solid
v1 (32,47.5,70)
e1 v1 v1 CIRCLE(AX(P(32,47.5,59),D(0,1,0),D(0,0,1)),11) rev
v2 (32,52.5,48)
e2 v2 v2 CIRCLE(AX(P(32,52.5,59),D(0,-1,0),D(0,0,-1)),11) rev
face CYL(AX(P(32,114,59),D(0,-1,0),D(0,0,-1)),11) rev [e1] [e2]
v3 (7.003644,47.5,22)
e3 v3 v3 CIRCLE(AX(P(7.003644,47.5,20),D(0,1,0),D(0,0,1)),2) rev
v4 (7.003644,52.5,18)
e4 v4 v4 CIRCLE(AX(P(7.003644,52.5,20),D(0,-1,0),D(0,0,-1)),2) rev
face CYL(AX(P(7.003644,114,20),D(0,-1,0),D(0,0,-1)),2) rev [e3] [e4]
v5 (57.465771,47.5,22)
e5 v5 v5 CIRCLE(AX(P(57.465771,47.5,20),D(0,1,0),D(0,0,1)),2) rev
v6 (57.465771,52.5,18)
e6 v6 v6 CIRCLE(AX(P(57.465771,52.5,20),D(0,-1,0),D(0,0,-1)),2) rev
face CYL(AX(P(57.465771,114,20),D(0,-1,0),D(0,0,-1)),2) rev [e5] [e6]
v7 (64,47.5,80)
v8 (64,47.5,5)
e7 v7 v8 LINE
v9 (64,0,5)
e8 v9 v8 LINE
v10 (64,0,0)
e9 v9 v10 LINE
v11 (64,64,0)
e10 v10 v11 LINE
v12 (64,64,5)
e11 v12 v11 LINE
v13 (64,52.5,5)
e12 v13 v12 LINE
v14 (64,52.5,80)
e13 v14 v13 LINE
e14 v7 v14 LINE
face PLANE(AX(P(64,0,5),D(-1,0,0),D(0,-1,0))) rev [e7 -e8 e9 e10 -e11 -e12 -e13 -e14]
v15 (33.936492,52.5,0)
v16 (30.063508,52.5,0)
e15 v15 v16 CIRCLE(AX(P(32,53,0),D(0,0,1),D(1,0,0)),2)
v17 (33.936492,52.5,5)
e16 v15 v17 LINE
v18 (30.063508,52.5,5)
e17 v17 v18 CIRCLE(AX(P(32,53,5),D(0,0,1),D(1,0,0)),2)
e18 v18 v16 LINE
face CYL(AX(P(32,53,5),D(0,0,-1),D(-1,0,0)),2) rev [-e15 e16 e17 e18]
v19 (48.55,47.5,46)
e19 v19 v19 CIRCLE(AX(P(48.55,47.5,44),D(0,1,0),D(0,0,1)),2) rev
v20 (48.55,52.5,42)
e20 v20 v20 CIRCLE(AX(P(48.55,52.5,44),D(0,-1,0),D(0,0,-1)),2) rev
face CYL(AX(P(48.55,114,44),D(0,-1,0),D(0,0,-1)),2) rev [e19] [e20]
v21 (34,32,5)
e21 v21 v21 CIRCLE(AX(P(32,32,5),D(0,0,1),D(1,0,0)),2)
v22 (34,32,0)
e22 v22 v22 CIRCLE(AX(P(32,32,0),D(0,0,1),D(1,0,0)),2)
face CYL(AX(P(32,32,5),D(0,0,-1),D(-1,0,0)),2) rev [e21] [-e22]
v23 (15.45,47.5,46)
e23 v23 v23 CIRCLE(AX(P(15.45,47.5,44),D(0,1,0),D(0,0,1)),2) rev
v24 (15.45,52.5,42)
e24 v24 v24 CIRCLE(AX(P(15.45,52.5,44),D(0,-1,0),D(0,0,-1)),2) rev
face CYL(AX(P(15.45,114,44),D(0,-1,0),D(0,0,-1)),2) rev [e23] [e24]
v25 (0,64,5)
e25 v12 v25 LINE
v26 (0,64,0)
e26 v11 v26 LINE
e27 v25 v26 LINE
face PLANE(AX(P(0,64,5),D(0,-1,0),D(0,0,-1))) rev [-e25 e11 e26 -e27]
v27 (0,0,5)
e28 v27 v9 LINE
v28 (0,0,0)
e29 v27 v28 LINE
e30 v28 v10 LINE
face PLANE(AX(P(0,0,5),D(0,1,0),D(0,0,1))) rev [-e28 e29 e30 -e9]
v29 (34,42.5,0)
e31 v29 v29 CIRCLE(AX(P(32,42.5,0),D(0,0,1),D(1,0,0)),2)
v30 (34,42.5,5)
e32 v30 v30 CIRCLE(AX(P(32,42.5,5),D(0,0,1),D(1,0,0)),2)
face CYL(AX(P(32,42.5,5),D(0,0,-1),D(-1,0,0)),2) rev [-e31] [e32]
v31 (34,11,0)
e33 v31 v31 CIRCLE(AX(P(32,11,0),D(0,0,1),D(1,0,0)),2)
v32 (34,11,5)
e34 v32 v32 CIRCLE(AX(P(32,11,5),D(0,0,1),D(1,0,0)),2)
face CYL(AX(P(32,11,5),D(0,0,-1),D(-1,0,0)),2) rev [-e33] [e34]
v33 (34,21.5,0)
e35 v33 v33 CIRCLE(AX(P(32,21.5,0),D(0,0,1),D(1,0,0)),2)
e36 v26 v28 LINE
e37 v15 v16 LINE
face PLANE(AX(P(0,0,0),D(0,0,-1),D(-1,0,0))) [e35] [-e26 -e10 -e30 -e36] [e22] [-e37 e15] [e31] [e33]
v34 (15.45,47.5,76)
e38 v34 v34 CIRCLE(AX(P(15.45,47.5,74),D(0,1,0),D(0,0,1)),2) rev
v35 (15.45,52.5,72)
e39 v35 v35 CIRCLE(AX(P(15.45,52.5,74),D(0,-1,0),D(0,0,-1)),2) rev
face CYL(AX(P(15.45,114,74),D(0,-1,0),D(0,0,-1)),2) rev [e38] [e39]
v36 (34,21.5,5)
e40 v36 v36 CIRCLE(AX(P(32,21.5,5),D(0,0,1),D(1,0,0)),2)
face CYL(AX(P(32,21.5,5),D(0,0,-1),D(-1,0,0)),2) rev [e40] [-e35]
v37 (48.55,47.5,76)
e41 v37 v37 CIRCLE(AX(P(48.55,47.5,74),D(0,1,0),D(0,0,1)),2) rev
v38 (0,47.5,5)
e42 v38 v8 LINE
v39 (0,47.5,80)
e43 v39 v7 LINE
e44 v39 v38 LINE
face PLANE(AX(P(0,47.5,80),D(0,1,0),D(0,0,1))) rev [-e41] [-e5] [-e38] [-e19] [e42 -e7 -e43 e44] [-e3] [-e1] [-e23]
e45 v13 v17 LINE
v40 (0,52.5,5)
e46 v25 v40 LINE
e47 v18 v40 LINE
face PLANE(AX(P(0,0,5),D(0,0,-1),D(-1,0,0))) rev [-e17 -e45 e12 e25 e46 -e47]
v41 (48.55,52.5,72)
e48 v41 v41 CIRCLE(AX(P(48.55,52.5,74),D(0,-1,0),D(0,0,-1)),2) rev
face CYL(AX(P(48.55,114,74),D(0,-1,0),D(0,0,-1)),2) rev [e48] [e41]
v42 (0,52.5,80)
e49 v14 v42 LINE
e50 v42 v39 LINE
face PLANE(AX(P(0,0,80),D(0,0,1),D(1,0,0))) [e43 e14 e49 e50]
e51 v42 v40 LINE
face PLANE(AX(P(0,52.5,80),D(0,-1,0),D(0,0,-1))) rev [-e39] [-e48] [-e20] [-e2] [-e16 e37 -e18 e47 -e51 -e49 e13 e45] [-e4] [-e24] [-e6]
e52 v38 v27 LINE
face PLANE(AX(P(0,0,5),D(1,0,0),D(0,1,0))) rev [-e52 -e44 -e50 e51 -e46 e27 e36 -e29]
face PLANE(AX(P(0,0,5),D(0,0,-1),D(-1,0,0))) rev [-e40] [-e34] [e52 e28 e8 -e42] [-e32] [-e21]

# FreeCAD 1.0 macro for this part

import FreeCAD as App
import Part
import Sketcher
Q = App.Units.Quantity


def add_polygon(sketch, points):
    """Adds a closed chain of lines whose ends are joined by coincident constraints."""
    first, n = sketch.GeometryCount, len(points)
    for a, b in zip(points, points[1:] + points[:1]):
        sketch.addGeometry(Part.LineSegment(App.Vector(*a, 0), App.Vector(*b, 0)), False)
    for i in range(n):
        sketch.addConstraint(Sketcher.Constraint("Coincident", first + i, 2, first + (i + 1) % n, 1))

doc = App.newDocument("Part")
params = doc.addObject("Spreadsheet::Sheet", "Params")
for row, (alias, value) in enumerate([
    ("sketch1_diameter", "4 mm"),
    ("sketch1_width", "64 mm"),
    ("pad1_length", "5 mm"),
    ("sketch2_width", "64 mm"),
    ("sketch2_height", "5 mm"),
    ("pad2_length", "80 mm"),
    ("sketch3_diameter", "22 mm"),
    ("sketch3_diameter2", "4 mm"),
    ("pocket1_length", "114 mm"),
], start=1):
    params.set(f"A{row}", alias)
    params.set(f"B{row}", "=" + value)
    params.setAlias(f"B{row}", alias)

body = doc.addObject("PartDesign::Body", "Body")

# Sketch on XY plane
sketch1 = body.newObject("Sketcher::SketchObject", "Sketch")
sketch1.AttachmentSupport = (doc.getObject("XY_Plane"), [""])
sketch1.MapMode = "FlatFace"
add_polygon(sketch1, [(0, 64), (0, 0), (64, 0), (64, 64)])  # lines 0-3
sketch1.addGeometry(Part.Circle(App.Vector(32, 11, 0), App.Vector(0, 0, 1), 2), False)  # 4
sketch1.addGeometry(Part.Circle(App.Vector(32, 21.5, 0), App.Vector(0, 0, 1), 2), False)  # 5
sketch1.addGeometry(Part.Circle(App.Vector(32, 32, 0), App.Vector(0, 0, 1), 2), False)  # 6
sketch1.addGeometry(Part.Circle(App.Vector(32, 42.5, 0), App.Vector(0, 0, 1), 2), False)  # 7
sketch1.addGeometry(Part.Circle(App.Vector(32, 53, 0), App.Vector(0, 0, 1), 2), False)  # 8
sketch1.addConstraint([
    Sketcher.Constraint("Vertical", 0),
    Sketcher.Constraint("Horizontal", 1),
    Sketcher.Constraint("Vertical", 2),
    Sketcher.Constraint("Horizontal", 3),
    Sketcher.Constraint("Coincident", 0, 2, -1, 1),
    Sketcher.Constraint("Equal", 4, 5),
    Sketcher.Constraint("Equal", 5, 6),
    Sketcher.Constraint("Equal", 6, 7),
    Sketcher.Constraint("Equal", 7, 8),
    Sketcher.Constraint("Vertical", 4, 3, 5, 3),
    Sketcher.Constraint("Vertical", 5, 3, 6, 3),
    Sketcher.Constraint("Vertical", 6, 3, 7, 3),
    Sketcher.Constraint("Vertical", 7, 3, 8, 3),
    Sketcher.Constraint("Equal", 3, 0),
    Sketcher.Constraint("Diameter", 4, Q("4 mm")),
    Sketcher.Constraint("DistanceX", 1, 1, 1, 2, Q("64 mm")),
    Sketcher.Constraint("DistanceX", -1, 1, 4, 3, Q("32 mm")),
    Sketcher.Constraint("DistanceY", -1, 1, 4, 3, Q("11 mm")),
    Sketcher.Constraint("DistanceY", -1, 1, 6, 3, Q("32 mm")),
    Sketcher.Constraint("DistanceY", -1, 1, 8, 3, Q("53 mm")),
    Sketcher.Constraint("DistanceY", 5, 3, 7, 3, Q("21 mm")),
    Sketcher.Constraint("DistanceY", -1, 1, 5, 3, Q("21.5 mm")),
])
sketch1.setExpression("Constraints[18]", "Params.sketch1_diameter")
sketch1.setExpression("Constraints[19]", "Params.sketch1_width")
pad1 = body.newObject("PartDesign::Pad", "Pad")
pad1.Profile = sketch1
pad1.setExpression("Length", "Params.pad1_length")

# Sketch on XY plane
sketch2 = body.newObject("Sketcher::SketchObject", "Sketch001")
sketch2.AttachmentSupport = (doc.getObject("XY_Plane"), [""])
sketch2.MapMode = "FlatFace"
add_polygon(sketch2, [(0, 52), (0, 48), (64, 48), (64, 52)])  # lines 0-3
sketch2.addConstraint([
    Sketcher.Constraint("Vertical", 0),
    Sketcher.Constraint("Horizontal", 1),
    Sketcher.Constraint("Vertical", 2),
    Sketcher.Constraint("Horizontal", 3),
    Sketcher.Constraint("PointOnObject", 0, 2, -2),
    Sketcher.Constraint("DistanceX", 1, 1, 1, 2, Q("64 mm")),
    Sketcher.Constraint("DistanceY", 0, 2, 0, 1, Q("5 mm")),
    Sketcher.Constraint("DistanceY", -1, 1, 0, 2, Q("47.5 mm")),
])
sketch2.setExpression("Constraints[9]", "Params.sketch2_width")
sketch2.setExpression("Constraints[10]", "Params.sketch2_height")
pad2 = body.newObject("PartDesign::Pad", "Pad001")
pad2.Profile = sketch2
pad2.setExpression("Length", "Params.pad2_length")

# Sketch on XZ plane
sketch3 = body.newObject("Sketcher::SketchObject", "Sketch002")
sketch3.AttachmentSupport = (doc.getObject("XZ_Plane"), [""])
sketch3.MapMode = "FlatFace"
sketch3.addGeometry([
    Part.Circle(App.Vector(32, 59, 0), App.Vector(0, 0, 1), 11),  # 0
    Part.Circle(App.Vector(15.4, 74, 0), App.Vector(0, 0, 1), 2),  # 1
    Part.Circle(App.Vector(48.5, 74, 0), App.Vector(0, 0, 1), 2),  # 2
    Part.Circle(App.Vector(15.4, 44, 0), App.Vector(0, 0, 1), 2),  # 3
    Part.Circle(App.Vector(48.5, 44, 0), App.Vector(0, 0, 1), 2),  # 4
    Part.Circle(App.Vector(7, 20, 0), App.Vector(0, 0, 1), 2),  # 5
    Part.Circle(App.Vector(57.5, 20, 0), App.Vector(0, 0, 1), 2),  # 6
], False)
sketch3.addConstraint([
    Sketcher.Constraint("Equal", 1, 2),
    Sketcher.Constraint("Equal", 2, 3),
    Sketcher.Constraint("Equal", 3, 4),
    Sketcher.Constraint("Equal", 4, 5),
    Sketcher.Constraint("Equal", 5, 6),
    Sketcher.Constraint("Horizontal", 1, 3, 2, 3),
    Sketcher.Constraint("Horizontal", 3, 3, 4, 3),
    Sketcher.Constraint("Horizontal", 5, 3, 6, 3),
    Sketcher.Constraint("Vertical", 1, 3, 3, 3),
    Sketcher.Constraint("Vertical", 2, 3, 4, 3),
    Sketcher.Constraint("Diameter", 0, Q("22 mm")),
    Sketcher.Constraint("Diameter", 1, Q("4 mm")),
    Sketcher.Constraint("DistanceX", -1, 1, 0, 3, Q("32 mm")),
    Sketcher.Constraint("DistanceY", -1, 1, 0, 3, Q("59 mm")),
    Sketcher.Constraint("DistanceY", -1, 1, 1, 3, Q("74 mm")),
    Sketcher.Constraint("DistanceY", -1, 1, 3, 3, Q("44 mm")),
    Sketcher.Constraint("DistanceY", -1, 1, 5, 3, Q("20 mm")),
    Sketcher.Constraint("DistanceX", 1, 3, 2, 3, Q("33.1 mm")),
    Sketcher.Constraint("DistanceX", -1, 1, 1, 3, Q("15.45 mm")),
    Sketcher.Constraint("DistanceX", -1, 1, 6, 3, Q("57.465771 mm")),
    Sketcher.Constraint("DistanceX", -1, 1, 5, 3, Q("7.003644 mm")),
])
sketch3.setExpression("Constraints[10]", "Params.sketch3_diameter")
sketch3.setExpression("Constraints[11]", "Params.sketch3_diameter2")
pocket1 = body.newObject("PartDesign::Pocket", "Pocket")
pocket1.Profile = sketch3
pocket1.setExpression("Length", "Params.pocket1_length")

doc.recompute()
